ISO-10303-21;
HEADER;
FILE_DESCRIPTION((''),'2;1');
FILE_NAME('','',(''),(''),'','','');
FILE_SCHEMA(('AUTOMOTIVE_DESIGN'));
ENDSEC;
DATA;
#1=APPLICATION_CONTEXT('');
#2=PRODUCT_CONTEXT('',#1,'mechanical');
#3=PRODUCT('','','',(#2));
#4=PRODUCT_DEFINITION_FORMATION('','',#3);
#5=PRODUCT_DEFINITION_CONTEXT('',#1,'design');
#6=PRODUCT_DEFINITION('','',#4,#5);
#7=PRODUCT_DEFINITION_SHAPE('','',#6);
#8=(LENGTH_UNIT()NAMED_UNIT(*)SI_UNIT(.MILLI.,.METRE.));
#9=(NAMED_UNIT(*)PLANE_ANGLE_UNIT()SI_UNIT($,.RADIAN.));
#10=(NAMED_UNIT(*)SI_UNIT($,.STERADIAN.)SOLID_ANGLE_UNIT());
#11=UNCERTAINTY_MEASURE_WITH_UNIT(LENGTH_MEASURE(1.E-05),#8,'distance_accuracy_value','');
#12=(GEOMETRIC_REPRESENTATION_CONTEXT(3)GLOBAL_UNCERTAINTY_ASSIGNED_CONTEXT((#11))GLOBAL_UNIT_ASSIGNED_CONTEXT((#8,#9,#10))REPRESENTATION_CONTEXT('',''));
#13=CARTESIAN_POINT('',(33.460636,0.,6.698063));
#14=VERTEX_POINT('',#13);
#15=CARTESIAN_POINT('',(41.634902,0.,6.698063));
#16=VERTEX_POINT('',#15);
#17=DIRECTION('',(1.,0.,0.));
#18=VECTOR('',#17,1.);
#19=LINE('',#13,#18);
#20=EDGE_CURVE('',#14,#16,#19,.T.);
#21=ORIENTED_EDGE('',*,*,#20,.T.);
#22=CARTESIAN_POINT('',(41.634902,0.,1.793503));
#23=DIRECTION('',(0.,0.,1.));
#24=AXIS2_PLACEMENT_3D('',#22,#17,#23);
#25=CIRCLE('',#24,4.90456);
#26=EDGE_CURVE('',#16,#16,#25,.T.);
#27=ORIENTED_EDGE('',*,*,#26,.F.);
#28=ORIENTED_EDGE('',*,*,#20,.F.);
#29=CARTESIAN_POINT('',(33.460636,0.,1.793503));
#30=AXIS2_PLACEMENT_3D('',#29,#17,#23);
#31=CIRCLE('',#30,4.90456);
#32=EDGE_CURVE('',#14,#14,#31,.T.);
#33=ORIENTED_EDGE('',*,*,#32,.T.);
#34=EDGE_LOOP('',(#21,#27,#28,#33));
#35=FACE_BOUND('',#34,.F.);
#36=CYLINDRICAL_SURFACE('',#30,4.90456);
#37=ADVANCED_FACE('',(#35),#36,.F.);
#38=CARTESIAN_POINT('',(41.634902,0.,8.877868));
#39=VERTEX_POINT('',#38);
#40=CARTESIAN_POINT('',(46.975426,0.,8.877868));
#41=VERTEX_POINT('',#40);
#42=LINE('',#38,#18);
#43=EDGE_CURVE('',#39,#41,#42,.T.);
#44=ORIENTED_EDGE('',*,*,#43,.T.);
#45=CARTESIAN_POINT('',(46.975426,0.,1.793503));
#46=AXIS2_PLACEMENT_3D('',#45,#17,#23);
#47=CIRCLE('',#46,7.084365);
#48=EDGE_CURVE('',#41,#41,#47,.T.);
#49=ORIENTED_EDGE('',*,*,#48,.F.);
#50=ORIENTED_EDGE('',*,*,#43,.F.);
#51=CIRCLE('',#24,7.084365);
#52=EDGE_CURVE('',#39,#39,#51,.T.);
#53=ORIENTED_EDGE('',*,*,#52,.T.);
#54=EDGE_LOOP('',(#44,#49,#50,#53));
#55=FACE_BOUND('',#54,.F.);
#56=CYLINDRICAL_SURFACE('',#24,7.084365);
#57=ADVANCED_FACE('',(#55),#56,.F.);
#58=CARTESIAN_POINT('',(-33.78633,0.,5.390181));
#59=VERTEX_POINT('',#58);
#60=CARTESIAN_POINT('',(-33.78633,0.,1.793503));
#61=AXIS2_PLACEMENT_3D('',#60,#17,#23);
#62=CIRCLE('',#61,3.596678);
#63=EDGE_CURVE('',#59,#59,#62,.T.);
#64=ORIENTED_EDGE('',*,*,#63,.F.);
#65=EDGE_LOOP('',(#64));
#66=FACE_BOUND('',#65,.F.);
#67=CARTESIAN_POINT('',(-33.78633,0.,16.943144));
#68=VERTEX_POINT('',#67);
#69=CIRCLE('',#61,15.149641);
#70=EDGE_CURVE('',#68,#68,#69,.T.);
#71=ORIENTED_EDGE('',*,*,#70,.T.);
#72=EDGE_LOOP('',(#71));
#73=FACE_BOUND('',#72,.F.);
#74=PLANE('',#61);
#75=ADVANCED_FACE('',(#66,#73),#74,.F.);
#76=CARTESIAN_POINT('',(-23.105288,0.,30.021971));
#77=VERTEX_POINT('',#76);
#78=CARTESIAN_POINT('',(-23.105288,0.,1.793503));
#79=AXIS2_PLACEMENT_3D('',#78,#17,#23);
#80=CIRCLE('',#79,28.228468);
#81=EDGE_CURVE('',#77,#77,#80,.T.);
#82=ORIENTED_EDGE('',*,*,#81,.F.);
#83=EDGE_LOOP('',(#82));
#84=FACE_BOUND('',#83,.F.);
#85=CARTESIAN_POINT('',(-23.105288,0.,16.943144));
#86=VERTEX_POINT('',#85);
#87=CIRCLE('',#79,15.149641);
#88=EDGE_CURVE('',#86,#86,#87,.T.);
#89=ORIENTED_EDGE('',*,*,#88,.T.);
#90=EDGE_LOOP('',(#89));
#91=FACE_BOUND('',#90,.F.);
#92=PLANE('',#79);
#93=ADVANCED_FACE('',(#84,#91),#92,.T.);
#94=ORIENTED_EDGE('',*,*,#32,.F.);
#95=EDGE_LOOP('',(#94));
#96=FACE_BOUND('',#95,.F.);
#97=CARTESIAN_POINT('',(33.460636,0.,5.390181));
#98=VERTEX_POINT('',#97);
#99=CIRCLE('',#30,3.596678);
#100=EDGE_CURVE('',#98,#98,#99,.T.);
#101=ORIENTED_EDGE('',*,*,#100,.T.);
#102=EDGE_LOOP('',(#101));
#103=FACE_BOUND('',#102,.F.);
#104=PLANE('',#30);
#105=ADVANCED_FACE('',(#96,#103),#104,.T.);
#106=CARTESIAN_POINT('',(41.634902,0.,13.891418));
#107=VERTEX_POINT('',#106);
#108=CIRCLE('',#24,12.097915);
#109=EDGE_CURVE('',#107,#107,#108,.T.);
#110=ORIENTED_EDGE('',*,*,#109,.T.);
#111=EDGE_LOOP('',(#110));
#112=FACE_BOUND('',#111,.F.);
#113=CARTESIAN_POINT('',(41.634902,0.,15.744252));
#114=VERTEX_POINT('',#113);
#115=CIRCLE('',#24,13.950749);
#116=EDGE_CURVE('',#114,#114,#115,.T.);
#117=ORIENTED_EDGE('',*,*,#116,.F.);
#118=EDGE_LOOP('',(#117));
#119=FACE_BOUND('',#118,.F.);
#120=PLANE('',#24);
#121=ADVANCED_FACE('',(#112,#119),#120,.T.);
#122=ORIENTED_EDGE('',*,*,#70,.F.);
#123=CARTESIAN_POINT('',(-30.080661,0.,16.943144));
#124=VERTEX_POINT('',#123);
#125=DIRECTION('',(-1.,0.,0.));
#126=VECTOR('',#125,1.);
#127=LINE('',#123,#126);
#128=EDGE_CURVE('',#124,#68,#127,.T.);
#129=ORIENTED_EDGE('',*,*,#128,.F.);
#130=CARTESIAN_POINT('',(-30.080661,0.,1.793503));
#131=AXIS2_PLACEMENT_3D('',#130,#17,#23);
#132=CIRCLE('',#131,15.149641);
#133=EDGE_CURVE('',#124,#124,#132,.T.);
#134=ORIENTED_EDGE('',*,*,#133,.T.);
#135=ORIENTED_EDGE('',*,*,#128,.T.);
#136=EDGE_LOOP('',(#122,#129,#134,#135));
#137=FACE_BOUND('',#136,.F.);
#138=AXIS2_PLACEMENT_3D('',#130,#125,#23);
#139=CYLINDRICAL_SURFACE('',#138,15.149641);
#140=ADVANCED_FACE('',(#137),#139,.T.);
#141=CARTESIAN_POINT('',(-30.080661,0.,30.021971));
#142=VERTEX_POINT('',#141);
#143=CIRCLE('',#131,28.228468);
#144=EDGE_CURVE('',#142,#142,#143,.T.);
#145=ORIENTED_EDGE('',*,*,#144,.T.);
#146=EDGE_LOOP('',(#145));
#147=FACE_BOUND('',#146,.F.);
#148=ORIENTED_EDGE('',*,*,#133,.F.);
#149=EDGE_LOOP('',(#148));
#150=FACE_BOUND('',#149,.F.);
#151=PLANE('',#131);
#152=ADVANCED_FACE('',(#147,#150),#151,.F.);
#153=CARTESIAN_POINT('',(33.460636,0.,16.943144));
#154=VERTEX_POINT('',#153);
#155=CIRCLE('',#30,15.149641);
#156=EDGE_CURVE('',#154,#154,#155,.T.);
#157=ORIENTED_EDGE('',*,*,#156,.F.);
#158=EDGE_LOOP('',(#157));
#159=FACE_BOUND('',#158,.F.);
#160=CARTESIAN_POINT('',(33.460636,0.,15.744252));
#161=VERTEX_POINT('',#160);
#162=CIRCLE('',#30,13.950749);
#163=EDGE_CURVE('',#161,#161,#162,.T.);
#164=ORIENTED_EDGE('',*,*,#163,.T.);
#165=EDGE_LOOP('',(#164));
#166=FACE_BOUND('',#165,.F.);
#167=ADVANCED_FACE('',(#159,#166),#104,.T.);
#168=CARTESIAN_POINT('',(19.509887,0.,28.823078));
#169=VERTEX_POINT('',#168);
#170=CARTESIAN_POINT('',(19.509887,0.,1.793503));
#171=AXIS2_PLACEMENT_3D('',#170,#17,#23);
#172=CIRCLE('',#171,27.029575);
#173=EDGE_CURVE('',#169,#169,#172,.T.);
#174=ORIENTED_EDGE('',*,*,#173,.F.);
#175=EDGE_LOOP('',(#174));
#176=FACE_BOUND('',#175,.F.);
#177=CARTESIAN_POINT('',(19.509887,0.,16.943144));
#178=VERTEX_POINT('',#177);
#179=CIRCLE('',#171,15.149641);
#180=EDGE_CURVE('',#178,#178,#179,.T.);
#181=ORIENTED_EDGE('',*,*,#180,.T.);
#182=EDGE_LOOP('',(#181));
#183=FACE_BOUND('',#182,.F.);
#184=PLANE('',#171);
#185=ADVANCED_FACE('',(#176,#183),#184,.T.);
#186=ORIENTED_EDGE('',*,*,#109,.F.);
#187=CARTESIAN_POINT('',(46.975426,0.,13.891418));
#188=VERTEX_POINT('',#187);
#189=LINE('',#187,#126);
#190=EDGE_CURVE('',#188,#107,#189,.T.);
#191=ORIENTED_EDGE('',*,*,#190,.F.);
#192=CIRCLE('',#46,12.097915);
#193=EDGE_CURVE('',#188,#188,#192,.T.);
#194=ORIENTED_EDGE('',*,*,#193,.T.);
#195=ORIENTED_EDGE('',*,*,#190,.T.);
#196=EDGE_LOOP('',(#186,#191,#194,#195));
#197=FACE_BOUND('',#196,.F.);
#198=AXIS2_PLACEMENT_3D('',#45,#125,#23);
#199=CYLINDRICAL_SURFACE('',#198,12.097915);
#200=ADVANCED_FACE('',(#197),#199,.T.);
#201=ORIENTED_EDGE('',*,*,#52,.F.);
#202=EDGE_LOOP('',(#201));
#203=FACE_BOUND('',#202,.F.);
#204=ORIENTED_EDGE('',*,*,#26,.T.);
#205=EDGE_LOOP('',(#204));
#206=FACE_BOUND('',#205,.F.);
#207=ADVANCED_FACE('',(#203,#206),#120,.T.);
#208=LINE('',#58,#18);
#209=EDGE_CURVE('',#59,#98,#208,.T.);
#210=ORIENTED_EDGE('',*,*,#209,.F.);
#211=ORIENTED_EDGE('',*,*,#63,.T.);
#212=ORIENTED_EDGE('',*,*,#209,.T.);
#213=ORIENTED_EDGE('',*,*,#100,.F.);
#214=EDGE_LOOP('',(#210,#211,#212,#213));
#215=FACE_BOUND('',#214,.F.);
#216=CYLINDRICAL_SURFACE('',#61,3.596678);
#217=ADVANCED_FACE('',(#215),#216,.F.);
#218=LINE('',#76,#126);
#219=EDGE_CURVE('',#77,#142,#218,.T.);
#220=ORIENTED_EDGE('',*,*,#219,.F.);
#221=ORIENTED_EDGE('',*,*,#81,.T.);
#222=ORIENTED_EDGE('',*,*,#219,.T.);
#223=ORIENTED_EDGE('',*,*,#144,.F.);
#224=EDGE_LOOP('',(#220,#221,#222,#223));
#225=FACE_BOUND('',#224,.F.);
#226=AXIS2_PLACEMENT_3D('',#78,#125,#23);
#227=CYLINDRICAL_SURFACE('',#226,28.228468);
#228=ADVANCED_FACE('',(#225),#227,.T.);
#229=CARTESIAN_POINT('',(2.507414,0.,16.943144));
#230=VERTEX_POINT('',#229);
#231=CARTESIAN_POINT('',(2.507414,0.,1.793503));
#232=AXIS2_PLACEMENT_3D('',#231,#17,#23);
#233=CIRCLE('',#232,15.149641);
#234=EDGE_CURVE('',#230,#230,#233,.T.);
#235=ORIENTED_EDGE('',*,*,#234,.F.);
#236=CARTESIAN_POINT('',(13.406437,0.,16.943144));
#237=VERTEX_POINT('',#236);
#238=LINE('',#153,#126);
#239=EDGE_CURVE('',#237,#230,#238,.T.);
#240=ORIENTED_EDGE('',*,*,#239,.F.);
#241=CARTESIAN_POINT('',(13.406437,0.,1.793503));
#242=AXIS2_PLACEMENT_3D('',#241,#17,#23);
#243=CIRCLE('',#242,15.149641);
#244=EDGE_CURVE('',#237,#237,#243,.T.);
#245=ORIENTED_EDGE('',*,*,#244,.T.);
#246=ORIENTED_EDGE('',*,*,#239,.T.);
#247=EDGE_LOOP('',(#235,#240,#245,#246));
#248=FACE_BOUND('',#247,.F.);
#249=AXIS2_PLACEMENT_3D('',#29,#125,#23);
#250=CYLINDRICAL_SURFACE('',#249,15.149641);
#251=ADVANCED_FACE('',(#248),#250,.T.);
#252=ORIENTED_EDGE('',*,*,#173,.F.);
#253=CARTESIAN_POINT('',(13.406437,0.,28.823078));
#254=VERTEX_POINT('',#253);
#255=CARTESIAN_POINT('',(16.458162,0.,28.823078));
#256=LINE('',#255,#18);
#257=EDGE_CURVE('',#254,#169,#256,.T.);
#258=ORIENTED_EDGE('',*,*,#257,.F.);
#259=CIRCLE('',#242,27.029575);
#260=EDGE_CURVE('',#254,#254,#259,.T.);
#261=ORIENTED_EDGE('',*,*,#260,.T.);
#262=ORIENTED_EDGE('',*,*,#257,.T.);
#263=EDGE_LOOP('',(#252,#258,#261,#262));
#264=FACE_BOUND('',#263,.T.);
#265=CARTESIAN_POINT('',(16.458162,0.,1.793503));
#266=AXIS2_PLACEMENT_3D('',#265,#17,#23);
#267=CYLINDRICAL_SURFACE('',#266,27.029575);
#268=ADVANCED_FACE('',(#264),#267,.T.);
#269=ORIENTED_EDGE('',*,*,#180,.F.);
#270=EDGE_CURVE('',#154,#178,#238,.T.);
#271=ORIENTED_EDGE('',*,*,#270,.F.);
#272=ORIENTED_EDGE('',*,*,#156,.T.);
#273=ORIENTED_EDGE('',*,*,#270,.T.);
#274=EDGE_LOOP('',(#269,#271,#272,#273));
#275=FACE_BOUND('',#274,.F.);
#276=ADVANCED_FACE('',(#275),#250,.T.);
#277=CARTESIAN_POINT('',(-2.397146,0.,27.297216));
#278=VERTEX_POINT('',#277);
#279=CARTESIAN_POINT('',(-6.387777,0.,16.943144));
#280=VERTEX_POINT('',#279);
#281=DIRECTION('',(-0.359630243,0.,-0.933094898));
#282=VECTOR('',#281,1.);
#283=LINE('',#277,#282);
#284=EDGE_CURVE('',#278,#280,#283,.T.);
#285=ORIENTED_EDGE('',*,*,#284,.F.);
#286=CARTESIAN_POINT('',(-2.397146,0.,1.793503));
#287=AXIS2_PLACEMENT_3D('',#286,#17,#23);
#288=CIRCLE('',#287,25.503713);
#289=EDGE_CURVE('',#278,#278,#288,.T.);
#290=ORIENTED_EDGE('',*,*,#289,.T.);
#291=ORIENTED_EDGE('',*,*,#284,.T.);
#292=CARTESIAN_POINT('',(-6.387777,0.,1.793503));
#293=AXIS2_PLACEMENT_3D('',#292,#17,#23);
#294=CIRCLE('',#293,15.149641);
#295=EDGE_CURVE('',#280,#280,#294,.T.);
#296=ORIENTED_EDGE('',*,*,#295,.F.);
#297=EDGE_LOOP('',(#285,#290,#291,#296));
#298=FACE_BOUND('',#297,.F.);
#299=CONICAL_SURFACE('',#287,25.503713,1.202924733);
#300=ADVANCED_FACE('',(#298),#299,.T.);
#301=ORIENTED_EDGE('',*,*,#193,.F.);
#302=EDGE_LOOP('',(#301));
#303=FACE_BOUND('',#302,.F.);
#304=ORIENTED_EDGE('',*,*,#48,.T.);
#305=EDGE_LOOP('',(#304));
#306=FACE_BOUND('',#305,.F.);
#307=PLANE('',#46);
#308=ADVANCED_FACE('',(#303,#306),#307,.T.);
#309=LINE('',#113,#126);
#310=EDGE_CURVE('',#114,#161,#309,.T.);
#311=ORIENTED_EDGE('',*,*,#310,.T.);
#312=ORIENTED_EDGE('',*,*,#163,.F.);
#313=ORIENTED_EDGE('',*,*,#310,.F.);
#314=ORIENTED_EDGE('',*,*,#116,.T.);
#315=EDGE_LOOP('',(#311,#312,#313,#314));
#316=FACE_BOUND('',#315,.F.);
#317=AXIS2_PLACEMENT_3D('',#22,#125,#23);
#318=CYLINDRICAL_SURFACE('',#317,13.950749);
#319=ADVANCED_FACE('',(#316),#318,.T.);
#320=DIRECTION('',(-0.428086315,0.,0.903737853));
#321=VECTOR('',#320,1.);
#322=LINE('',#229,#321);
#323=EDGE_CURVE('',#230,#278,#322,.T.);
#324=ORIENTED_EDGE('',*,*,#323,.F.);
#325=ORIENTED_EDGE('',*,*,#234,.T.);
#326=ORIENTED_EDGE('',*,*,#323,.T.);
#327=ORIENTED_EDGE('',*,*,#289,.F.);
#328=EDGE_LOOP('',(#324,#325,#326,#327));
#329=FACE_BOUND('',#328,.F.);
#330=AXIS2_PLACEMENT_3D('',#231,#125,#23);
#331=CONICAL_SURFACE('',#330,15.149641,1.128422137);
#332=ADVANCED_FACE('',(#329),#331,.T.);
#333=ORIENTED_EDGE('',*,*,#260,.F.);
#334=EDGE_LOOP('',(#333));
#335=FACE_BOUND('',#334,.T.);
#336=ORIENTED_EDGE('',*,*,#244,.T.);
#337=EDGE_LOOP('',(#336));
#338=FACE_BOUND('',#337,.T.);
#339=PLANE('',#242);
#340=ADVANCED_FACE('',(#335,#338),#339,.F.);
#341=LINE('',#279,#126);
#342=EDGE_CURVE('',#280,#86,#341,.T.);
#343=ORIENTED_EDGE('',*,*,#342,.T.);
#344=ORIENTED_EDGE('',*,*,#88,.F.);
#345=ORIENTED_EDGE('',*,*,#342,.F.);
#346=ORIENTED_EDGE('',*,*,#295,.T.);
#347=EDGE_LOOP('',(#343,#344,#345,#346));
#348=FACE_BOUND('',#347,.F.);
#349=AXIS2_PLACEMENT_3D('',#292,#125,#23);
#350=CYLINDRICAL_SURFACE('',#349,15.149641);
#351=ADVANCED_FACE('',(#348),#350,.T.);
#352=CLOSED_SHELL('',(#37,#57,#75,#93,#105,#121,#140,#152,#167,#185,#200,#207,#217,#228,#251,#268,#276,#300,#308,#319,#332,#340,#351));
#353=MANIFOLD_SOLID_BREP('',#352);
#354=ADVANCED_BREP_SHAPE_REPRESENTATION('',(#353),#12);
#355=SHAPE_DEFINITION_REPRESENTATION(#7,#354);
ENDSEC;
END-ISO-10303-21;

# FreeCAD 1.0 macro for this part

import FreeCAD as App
import Part
import Sketcher


def add_polygon(sketch, points):
    """Adds a closed chain of lines whose ends are joined by coincident constraints."""
    first, n = sketch.GeometryCount, len(points)
    for a, b in zip(points, points[1:] + points[:1]):
        sketch.addGeometry(Part.LineSegment(App.Vector(*a, 0), App.Vector(*b, 0)), False)
    for i in range(n):
        sketch.addConstraint(Sketcher.Constraint("Coincident", first + i, 2, first + (i + 1) % n, 1))

doc = App.newDocument("Part")
body = doc.addObject("PartDesign::Body", "Body")

# Sketch on XZ plane
sketch1 = body.newObject("Sketcher::SketchObject", "Sketch")
sketch1.AttachmentSupport = (doc.getObject("XZ_Plane"), [""])
sketch1.MapMode = "FlatFace"
add_polygon(sketch1, [(-30.1, 16.9), (-33.8, 16.9), (-33.8, 5.4), (33.5, 5.4), (33.5, 6.7), (41.6, 6.7), (41.6, 8.9), (47, 8.9), (47, 13.9), (41.6, 13.9), (41.6, 15.7), (33.5, 15.7), (33.5, 16.9), (19.5, 16.9), (19.5, 28.8), (13.4, 28.8), (13.4, 16.9), (2.5, 16.9), (-2.4, 27.3), (-6.4, 16.9), (-23.1, 16.9), (-23.1, 30), (-30.1, 30)])  # lines 0-22
sketch1.addGeometry(Part.LineSegment(App.Vector(-33.8, 1.8, 0), App.Vector(47, 1.8, 0)), True)  # axis
sketch1.addConstraint(Sketcher.Constraint("Horizontal", 0))
sketch1.addConstraint(Sketcher.Constraint("Vertical", 1))
sketch1.addConstraint(Sketcher.Constraint("Horizontal", 2))
sketch1.addConstraint(Sketcher.Constraint("Vertical", 3))
sketch1.addConstraint(Sketcher.Constraint("Horizontal", 4))
sketch1.addConstraint(Sketcher.Constraint("Vertical", 5))
sketch1.addConstraint(Sketcher.Constraint("Horizontal", 6))
sketch1.addConstraint(Sketcher.Constraint("Vertical", 7))
sketch1.addConstraint(Sketcher.Constraint("Horizontal", 8))
sketch1.addConstraint(Sketcher.Constraint("Vertical", 9))
sketch1.addConstraint(Sketcher.Constraint("Horizontal", 10))
sketch1.addConstraint(Sketcher.Constraint("Vertical", 11))
sketch1.addConstraint(Sketcher.Constraint("Horizontal", 12))
sketch1.addConstraint(Sketcher.Constraint("Vertical", 13))
sketch1.addConstraint(Sketcher.Constraint("Horizontal", 14))
sketch1.addConstraint(Sketcher.Constraint("Vertical", 15))
sketch1.addConstraint(Sketcher.Constraint("Horizontal", 16))
sketch1.addConstraint(Sketcher.Constraint("Horizontal", 19))
sketch1.addConstraint(Sketcher.Constraint("Vertical", 20))
sketch1.addConstraint(Sketcher.Constraint("Horizontal", 21))
sketch1.addConstraint(Sketcher.Constraint("Vertical", 22))
sketch1.addConstraint(Sketcher.Constraint("Horizontal", 23))
sketch1.addConstraint(Sketcher.Constraint("Horizontal", 0, 2, 11, 2))
sketch1.addConstraint(Sketcher.Constraint("Horizontal", 12, 2, 15, 2))
sketch1.addConstraint(Sketcher.Constraint("Horizontal", 16, 2, 18, 2))
sketch1.addConstraint(Sketcher.Constraint("Vertical", 5, 2, 8, 2))
sketch1.addConstraint(Sketcher.Constraint("Vertical", 3, 2, 10, 2))
sketch1.addConstraint(Sketcher.Constraint("Vertical", 1, 2, 23, 1))
sketch1.addConstraint(Sketcher.Constraint("Vertical", 7, 2, 23, 2))
sketch1.addConstraint(Sketcher.Constraint("DistanceX", 0, 2, 0, 1, 3.705669))
sketch1.addConstraint(Sketcher.Constraint("DistanceX", 12, 2, 12, 1, 13.950749))
sketch1.addConstraint(Sketcher.Constraint("DistanceX", 14, 2, 14, 1, 6.10345))
sketch1.addConstraint(Sketcher.Constraint("DistanceX", 19, 2, 19, 1, 16.717511))
sketch1.addConstraint(Sketcher.Constraint("DistanceY", 7, 1, 7, 2, 5.01355))
sketch1.addConstraint(Sketcher.Constraint("DistanceX", -1, 1, 4, 2, 41.634902))
sketch1.addConstraint(Sketcher.Constraint("Distance", 17, 11.456942))
sketch1.addConstraint(Sketcher.Constraint("DistanceX", 2, 1, 2, 2, 67.246966))
sketch1.addConstraint(Sketcher.Constraint("DistanceX", 4, 1, 4, 2, 8.174266))
sketch1.addConstraint(Sketcher.Constraint("DistanceX", 6, 1, 6, 2, 5.340524))
sketch1.addConstraint(Sketcher.Constraint("DistanceX", 16, 2, 16, 1, 10.899023))
sketch1.addConstraint(Sketcher.Constraint("DistanceX", 21, 2, 21, 1, 6.975373))
sketch1.addConstraint(Sketcher.Constraint("DistanceY", 1, 2, 1, 1, 11.552963))
sketch1.addConstraint(Sketcher.Constraint("DistanceY", 3, 1, 3, 2, 1.307882))
sketch1.addConstraint(Sketcher.Constraint("DistanceY", 5, 1, 5, 2, 2.179805))
sketch1.addConstraint(Sketcher.Constraint("DistanceY", 9, 1, 9, 2, 1.852834))
sketch1.addConstraint(Sketcher.Constraint("DistanceY", 13, 1, 13, 2, 11.879934))
sketch1.addConstraint(Sketcher.Constraint("DistanceY", 20, 1, 20, 2, 13.078827))
sketch1.addConstraint(Sketcher.Constraint("DistanceY", -1, 1, 1, 2, 5.390181))
sketch1.addConstraint(Sketcher.Constraint("DistanceX", 17, 2, 16, 2, 4.90456))
sketch1.addConstraint(Sketcher.Constraint("DistanceY", 23, 1, 0, 2, 15.149641))
revolution = body.newObject("PartDesign::Revolution", "Revolution")
revolution.Profile = sketch1
revolution.ReferenceAxis = (sketch1, ["Axis0"])
revolution.Angle = 360

doc.recompute()
